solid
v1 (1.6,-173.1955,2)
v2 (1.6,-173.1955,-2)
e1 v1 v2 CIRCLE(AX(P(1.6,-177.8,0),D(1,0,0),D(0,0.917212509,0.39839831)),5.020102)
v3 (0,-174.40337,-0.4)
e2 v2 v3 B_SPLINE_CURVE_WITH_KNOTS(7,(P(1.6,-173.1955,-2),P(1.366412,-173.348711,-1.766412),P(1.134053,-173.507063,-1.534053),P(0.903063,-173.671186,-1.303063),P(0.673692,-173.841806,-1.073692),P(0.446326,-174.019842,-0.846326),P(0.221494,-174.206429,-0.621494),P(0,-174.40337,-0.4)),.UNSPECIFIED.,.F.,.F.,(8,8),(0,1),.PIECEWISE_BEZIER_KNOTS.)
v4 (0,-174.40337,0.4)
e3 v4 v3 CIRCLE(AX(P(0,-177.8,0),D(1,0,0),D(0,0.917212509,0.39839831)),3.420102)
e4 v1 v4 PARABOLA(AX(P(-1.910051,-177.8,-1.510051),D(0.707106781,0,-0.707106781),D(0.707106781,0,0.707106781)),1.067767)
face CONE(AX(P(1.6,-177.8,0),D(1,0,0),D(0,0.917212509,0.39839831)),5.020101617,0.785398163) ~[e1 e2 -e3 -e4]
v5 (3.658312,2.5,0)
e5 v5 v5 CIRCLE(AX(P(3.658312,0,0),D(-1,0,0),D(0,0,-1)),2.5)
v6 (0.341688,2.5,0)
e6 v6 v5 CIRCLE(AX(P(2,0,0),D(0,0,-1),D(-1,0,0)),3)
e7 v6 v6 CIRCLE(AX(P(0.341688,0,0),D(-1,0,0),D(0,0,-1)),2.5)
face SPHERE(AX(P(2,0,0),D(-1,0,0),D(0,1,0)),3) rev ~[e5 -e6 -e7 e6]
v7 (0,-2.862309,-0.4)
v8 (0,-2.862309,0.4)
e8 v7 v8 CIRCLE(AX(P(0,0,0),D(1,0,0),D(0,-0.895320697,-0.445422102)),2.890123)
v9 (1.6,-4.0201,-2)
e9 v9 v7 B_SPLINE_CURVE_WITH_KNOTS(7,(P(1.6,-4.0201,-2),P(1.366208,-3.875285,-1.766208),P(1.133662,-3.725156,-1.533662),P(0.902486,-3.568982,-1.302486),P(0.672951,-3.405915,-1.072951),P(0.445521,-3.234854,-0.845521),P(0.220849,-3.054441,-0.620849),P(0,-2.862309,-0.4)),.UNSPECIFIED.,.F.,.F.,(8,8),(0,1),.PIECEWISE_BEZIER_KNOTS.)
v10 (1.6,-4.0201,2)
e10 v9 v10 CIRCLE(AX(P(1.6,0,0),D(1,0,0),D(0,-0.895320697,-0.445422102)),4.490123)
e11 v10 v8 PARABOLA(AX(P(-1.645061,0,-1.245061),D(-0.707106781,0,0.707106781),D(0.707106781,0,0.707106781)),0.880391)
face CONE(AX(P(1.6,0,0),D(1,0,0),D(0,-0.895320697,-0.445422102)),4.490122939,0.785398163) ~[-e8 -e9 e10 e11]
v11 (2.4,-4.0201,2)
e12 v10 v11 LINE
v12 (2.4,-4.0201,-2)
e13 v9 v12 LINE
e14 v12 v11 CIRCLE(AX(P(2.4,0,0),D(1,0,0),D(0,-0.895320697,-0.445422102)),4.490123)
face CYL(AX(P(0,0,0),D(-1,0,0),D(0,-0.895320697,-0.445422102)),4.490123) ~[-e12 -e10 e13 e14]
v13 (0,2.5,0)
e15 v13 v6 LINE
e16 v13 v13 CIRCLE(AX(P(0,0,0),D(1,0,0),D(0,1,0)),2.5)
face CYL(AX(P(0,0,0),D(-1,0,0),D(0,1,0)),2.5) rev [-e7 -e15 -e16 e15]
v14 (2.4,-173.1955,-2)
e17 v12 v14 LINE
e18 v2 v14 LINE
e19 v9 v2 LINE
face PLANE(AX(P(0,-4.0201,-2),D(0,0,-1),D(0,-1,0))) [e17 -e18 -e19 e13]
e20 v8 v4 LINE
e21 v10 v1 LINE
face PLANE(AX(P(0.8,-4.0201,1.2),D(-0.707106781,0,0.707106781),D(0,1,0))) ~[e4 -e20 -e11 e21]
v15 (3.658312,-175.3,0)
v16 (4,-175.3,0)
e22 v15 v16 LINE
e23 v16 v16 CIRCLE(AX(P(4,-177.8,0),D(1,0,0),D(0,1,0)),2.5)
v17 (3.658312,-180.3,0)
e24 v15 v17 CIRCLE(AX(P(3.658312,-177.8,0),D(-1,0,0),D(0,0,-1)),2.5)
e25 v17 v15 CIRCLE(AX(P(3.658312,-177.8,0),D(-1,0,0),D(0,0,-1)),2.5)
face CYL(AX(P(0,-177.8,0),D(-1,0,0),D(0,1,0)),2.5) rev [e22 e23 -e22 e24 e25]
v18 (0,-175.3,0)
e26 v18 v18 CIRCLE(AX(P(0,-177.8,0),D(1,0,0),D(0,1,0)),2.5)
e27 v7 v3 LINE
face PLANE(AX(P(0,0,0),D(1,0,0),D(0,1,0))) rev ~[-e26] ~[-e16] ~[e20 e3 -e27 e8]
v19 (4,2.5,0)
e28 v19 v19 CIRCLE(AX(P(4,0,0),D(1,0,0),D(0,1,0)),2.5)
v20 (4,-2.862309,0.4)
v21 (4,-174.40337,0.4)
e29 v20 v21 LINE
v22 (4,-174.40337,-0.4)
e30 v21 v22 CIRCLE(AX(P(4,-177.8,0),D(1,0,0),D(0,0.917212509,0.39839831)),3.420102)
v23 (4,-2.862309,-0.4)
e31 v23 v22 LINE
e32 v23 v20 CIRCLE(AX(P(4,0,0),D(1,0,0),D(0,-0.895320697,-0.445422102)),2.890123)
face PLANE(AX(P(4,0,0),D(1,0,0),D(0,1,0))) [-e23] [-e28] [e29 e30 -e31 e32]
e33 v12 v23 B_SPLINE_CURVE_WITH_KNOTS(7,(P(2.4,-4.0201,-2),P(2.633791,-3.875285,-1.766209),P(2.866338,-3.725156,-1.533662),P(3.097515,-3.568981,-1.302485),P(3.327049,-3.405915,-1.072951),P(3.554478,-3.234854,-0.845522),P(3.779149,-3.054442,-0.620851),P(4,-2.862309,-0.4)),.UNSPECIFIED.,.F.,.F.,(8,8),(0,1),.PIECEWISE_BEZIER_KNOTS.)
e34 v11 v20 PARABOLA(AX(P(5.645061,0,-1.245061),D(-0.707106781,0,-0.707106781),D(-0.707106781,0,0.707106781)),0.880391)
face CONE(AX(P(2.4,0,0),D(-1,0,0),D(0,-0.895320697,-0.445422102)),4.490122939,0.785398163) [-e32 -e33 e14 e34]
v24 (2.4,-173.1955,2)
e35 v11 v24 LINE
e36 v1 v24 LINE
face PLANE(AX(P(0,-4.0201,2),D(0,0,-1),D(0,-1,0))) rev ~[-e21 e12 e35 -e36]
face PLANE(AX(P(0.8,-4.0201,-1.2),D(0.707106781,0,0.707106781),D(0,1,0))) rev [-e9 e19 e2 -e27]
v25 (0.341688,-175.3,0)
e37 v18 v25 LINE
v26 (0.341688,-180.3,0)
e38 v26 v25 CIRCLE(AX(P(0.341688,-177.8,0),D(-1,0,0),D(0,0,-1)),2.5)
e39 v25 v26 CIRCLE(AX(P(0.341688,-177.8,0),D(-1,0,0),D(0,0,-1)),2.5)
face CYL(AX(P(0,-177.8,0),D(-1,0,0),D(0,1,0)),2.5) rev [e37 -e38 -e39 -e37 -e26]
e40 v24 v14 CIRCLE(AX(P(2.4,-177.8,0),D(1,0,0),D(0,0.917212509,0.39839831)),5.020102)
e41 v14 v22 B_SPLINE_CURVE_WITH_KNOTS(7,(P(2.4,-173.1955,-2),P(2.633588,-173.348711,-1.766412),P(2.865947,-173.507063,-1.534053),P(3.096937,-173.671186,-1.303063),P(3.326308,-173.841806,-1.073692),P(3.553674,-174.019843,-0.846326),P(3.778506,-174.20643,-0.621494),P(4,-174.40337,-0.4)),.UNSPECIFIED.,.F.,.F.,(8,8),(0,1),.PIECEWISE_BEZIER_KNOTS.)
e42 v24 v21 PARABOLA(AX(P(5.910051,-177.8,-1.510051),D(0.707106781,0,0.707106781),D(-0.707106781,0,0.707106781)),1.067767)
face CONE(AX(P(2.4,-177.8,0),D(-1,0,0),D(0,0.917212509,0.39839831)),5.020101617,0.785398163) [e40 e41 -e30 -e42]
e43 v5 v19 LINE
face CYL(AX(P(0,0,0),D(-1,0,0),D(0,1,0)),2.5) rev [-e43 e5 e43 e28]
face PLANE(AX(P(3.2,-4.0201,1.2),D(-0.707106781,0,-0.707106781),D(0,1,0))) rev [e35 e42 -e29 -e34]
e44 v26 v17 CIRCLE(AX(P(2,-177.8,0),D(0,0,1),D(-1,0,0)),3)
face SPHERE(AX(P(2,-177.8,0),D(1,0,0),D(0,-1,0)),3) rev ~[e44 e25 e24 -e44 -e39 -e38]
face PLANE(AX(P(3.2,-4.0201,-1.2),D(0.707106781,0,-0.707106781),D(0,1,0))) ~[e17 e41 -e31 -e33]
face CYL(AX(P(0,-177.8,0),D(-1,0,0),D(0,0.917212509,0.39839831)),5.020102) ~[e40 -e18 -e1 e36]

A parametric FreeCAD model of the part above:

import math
import FreeCAD as App
import Part
import Sketcher
Q = App.Units.Quantity


def edges_at(feature, points):
    """Names of the edges that pass closest to the given points."""
    edges = feature.Shape.Edges
    near = lambda p: min(range(len(edges)), key=lambda i: edges[i].distToShape(Part.Vertex(*p))[0])
    return sorted({f"Edge{near(p) + 1}" for p in points})

doc = App.newDocument("Part")
params = doc.addObject("Spreadsheet::Sheet", "Params")
for row, (alias, value) in enumerate([
    ("sketch1_diameter", "5 mm"),
    ("sketch1_radius", "5.02 mm"),
    ("sketch1_radius2", "4.4901 mm"),
    ("pad1_length", "4 mm"),
    ("chamfer_size", "1.6 mm"),
    ("sketch2_radius", "3 mm"),
    ("groove_angle", "360 deg"),
    ("sketch3_radius", "3 mm"),
    ("groove2_angle", "360 deg"),
], start=1):
    params.set(f"A{row}", alias)
    params.set(f"B{row}", "=" + value)
    params.setAlias(f"B{row}", alias)

body = doc.addObject("PartDesign::Body", "Body")

sketch1 = body.newObject("Sketcher::SketchObject", "Sketch")
sketch1.AttachmentSupport = (doc.getObject("YZ_Plane"), [""])
sketch1.MapMode = "FlatFace"
sketch1.addGeometry([
    Part.LineSegment(App.Vector(-173.2, -2, 0), App.Vector(-4, -2, 0)),
    Part.ArcOfCircle(Part.Circle(App.Vector(0, 0, 0), App.Vector(0, 0, 1), 4.5), math.radians(-154), math.radians(154)),
    Part.LineSegment(App.Vector(-4, 2, 0), App.Vector(-173.2, 2, 0)),
    Part.ArcOfCircle(Part.Circle(App.Vector(-177.8, 0, 0), App.Vector(0, 0, 1), 5), math.radians(23), math.radians(337)),
    Part.Circle(App.Vector(-177.8, 0, 0), App.Vector(0, 0, 1), 2.5),
    Part.Circle(App.Vector(0, 0, 0), App.Vector(0, 0, 1), 2.5),
], False)
sketch1.addConstraint([
    Sketcher.Constraint("Coincident", 0, 2, 1, 1),
    Sketcher.Constraint("Coincident", 1, 2, 2, 1),
    Sketcher.Constraint("Coincident", 2, 2, 3, 1),
    Sketcher.Constraint("Coincident", 3, 2, 0, 1),
    Sketcher.Constraint("Horizontal", 0),
    Sketcher.Constraint("Horizontal", 2),
    Sketcher.Constraint("Coincident", 1, 3, -1, 1),
    Sketcher.Constraint("Coincident", 5, 3, -1, 1),
    Sketcher.Constraint("Coincident", 4, 3, 3, 3),
    Sketcher.Constraint("Equal", 4, 5),
    Sketcher.Constraint("Symmetric", 2, 2, 3, 2, -1),
    Sketcher.Constraint("Diameter", 4, Q("5 mm")),
    Sketcher.Constraint("DistanceY", 0, 2, -1, 1, Q("2 mm")),
    Sketcher.Constraint("DistanceX", 3, 3, -1, 1, Q("177.8 mm")),
    Sketcher.Constraint("Radius", 3, Q("5.02 mm")),
    Sketcher.Constraint("Radius", 1, Q("4.4901 mm")),
])
sketch1.setExpression("Constraints[11]", "Params.sketch1_diameter")
sketch1.setExpression("Constraints[14]", "Params.sketch1_radius")
sketch1.setExpression("Constraints[15]", "Params.sketch1_radius2")
pad1 = body.newObject("PartDesign::Pad", "Pad")
pad1.Profile = sketch1
pad1.setExpression("Length", "Params.pad1_length")
doc.recompute()

chamfer = body.newObject("PartDesign::Chamfer", "Chamfer")
chamfer.Base = (pad1, edges_at(pad1, [
    (4, -88.608, 2),
    (0, -88.608, 2),
    (0, -88.608, -2),
    (4, -88.608, -2),
    (0, 4.49, 0),
    (4, 4.49, 0),
    (0, -182.82, 0),
    (4, -182.82, 0),
]))
chamfer.setExpression("Size", "Params.chamfer_size")

sketch2 = body.newObject("Sketcher::SketchObject", "Sketch001")
sketch2.AttachmentSupport = (doc.getObject("XY_Plane"), [""])
sketch2.MapMode = "FlatFace"
sketch2.addGeometry([
    Part.LineSegment(App.Vector(5, -177.8, 0), App.Vector(-1, -177.8, 0)),
    Part.ArcOfCircle(Part.Circle(App.Vector(2, -177.8, 0), App.Vector(0, 0, 1), 3), math.radians(180), math.radians(360)),
], False)
sketch2.addGeometry(Part.LineSegment(App.Vector(-1, -177.8, 0), App.Vector(5, -177.8, 0)), True)
sketch2.addConstraint([
    Sketcher.Constraint("Coincident", 0, 1, 1, 2),
    Sketcher.Constraint("Coincident", 1, 1, 0, 2),
    Sketcher.Constraint("Horizontal", 0),
    Sketcher.Constraint("Horizontal", 2),
    Sketcher.Constraint("Coincident", 2, 1, 1, 1),
    Sketcher.Constraint("Horizontal", 1, 3, 0, 1),
    Sketcher.Constraint("Equal", 0, 2),
    Sketcher.Constraint("Radius", 1, Q("3 mm")),
    Sketcher.Constraint("DistanceX", -1, 1, 1, 3, Q("2 mm")),
    Sketcher.Constraint("DistanceY", 1, 3, -1, 1, Q("177.8 mm")),
])
sketch2.setExpression("Constraints[7]", "Params.sketch2_radius")
groove = body.newObject("PartDesign::Groove", "Groove")
groove.Profile = sketch2
groove.ReferenceAxis = (sketch2, ["Axis0"])
groove.setExpression("Angle", "Params.groove_angle")

sketch3 = body.newObject("Sketcher::SketchObject", "Sketch002")
sketch3.AttachmentSupport = (doc.getObject("XY_Plane"), [""])
sketch3.MapMode = "FlatFace"
sketch3.addGeometry([
    Part.ArcOfCircle(Part.Circle(App.Vector(2, 0, 0), App.Vector(0, 0, 1), 3), math.radians(0), math.radians(180)),
    Part.LineSegment(App.Vector(-1, 0, 0), App.Vector(5, 0, 0)),
], False)
sketch3.addConstraint([
    Sketcher.Constraint("Coincident", 0, 1, 1, 2),
    Sketcher.Constraint("Coincident", 1, 1, 0, 2),
    Sketcher.Constraint("Horizontal", 1),
    Sketcher.Constraint("PointOnObject", 0, 3, -1),
    Sketcher.Constraint("PointOnObject", 0, 1, -1),
    Sketcher.Constraint("Radius", 0, Q("3 mm")),
    Sketcher.Constraint("DistanceX", -1, 1, 0, 3, Q("2 mm")),
])
sketch3.setExpression("Constraints[5]", "Params.sketch3_radius")
groove2 = body.newObject("PartDesign::Groove", "Groove001")
groove2.Profile = sketch3
groove2.ReferenceAxis = (sketch3, ["H_Axis"])
groove2.setExpression("Angle", "Params.groove2_angle")

doc.recompute()
